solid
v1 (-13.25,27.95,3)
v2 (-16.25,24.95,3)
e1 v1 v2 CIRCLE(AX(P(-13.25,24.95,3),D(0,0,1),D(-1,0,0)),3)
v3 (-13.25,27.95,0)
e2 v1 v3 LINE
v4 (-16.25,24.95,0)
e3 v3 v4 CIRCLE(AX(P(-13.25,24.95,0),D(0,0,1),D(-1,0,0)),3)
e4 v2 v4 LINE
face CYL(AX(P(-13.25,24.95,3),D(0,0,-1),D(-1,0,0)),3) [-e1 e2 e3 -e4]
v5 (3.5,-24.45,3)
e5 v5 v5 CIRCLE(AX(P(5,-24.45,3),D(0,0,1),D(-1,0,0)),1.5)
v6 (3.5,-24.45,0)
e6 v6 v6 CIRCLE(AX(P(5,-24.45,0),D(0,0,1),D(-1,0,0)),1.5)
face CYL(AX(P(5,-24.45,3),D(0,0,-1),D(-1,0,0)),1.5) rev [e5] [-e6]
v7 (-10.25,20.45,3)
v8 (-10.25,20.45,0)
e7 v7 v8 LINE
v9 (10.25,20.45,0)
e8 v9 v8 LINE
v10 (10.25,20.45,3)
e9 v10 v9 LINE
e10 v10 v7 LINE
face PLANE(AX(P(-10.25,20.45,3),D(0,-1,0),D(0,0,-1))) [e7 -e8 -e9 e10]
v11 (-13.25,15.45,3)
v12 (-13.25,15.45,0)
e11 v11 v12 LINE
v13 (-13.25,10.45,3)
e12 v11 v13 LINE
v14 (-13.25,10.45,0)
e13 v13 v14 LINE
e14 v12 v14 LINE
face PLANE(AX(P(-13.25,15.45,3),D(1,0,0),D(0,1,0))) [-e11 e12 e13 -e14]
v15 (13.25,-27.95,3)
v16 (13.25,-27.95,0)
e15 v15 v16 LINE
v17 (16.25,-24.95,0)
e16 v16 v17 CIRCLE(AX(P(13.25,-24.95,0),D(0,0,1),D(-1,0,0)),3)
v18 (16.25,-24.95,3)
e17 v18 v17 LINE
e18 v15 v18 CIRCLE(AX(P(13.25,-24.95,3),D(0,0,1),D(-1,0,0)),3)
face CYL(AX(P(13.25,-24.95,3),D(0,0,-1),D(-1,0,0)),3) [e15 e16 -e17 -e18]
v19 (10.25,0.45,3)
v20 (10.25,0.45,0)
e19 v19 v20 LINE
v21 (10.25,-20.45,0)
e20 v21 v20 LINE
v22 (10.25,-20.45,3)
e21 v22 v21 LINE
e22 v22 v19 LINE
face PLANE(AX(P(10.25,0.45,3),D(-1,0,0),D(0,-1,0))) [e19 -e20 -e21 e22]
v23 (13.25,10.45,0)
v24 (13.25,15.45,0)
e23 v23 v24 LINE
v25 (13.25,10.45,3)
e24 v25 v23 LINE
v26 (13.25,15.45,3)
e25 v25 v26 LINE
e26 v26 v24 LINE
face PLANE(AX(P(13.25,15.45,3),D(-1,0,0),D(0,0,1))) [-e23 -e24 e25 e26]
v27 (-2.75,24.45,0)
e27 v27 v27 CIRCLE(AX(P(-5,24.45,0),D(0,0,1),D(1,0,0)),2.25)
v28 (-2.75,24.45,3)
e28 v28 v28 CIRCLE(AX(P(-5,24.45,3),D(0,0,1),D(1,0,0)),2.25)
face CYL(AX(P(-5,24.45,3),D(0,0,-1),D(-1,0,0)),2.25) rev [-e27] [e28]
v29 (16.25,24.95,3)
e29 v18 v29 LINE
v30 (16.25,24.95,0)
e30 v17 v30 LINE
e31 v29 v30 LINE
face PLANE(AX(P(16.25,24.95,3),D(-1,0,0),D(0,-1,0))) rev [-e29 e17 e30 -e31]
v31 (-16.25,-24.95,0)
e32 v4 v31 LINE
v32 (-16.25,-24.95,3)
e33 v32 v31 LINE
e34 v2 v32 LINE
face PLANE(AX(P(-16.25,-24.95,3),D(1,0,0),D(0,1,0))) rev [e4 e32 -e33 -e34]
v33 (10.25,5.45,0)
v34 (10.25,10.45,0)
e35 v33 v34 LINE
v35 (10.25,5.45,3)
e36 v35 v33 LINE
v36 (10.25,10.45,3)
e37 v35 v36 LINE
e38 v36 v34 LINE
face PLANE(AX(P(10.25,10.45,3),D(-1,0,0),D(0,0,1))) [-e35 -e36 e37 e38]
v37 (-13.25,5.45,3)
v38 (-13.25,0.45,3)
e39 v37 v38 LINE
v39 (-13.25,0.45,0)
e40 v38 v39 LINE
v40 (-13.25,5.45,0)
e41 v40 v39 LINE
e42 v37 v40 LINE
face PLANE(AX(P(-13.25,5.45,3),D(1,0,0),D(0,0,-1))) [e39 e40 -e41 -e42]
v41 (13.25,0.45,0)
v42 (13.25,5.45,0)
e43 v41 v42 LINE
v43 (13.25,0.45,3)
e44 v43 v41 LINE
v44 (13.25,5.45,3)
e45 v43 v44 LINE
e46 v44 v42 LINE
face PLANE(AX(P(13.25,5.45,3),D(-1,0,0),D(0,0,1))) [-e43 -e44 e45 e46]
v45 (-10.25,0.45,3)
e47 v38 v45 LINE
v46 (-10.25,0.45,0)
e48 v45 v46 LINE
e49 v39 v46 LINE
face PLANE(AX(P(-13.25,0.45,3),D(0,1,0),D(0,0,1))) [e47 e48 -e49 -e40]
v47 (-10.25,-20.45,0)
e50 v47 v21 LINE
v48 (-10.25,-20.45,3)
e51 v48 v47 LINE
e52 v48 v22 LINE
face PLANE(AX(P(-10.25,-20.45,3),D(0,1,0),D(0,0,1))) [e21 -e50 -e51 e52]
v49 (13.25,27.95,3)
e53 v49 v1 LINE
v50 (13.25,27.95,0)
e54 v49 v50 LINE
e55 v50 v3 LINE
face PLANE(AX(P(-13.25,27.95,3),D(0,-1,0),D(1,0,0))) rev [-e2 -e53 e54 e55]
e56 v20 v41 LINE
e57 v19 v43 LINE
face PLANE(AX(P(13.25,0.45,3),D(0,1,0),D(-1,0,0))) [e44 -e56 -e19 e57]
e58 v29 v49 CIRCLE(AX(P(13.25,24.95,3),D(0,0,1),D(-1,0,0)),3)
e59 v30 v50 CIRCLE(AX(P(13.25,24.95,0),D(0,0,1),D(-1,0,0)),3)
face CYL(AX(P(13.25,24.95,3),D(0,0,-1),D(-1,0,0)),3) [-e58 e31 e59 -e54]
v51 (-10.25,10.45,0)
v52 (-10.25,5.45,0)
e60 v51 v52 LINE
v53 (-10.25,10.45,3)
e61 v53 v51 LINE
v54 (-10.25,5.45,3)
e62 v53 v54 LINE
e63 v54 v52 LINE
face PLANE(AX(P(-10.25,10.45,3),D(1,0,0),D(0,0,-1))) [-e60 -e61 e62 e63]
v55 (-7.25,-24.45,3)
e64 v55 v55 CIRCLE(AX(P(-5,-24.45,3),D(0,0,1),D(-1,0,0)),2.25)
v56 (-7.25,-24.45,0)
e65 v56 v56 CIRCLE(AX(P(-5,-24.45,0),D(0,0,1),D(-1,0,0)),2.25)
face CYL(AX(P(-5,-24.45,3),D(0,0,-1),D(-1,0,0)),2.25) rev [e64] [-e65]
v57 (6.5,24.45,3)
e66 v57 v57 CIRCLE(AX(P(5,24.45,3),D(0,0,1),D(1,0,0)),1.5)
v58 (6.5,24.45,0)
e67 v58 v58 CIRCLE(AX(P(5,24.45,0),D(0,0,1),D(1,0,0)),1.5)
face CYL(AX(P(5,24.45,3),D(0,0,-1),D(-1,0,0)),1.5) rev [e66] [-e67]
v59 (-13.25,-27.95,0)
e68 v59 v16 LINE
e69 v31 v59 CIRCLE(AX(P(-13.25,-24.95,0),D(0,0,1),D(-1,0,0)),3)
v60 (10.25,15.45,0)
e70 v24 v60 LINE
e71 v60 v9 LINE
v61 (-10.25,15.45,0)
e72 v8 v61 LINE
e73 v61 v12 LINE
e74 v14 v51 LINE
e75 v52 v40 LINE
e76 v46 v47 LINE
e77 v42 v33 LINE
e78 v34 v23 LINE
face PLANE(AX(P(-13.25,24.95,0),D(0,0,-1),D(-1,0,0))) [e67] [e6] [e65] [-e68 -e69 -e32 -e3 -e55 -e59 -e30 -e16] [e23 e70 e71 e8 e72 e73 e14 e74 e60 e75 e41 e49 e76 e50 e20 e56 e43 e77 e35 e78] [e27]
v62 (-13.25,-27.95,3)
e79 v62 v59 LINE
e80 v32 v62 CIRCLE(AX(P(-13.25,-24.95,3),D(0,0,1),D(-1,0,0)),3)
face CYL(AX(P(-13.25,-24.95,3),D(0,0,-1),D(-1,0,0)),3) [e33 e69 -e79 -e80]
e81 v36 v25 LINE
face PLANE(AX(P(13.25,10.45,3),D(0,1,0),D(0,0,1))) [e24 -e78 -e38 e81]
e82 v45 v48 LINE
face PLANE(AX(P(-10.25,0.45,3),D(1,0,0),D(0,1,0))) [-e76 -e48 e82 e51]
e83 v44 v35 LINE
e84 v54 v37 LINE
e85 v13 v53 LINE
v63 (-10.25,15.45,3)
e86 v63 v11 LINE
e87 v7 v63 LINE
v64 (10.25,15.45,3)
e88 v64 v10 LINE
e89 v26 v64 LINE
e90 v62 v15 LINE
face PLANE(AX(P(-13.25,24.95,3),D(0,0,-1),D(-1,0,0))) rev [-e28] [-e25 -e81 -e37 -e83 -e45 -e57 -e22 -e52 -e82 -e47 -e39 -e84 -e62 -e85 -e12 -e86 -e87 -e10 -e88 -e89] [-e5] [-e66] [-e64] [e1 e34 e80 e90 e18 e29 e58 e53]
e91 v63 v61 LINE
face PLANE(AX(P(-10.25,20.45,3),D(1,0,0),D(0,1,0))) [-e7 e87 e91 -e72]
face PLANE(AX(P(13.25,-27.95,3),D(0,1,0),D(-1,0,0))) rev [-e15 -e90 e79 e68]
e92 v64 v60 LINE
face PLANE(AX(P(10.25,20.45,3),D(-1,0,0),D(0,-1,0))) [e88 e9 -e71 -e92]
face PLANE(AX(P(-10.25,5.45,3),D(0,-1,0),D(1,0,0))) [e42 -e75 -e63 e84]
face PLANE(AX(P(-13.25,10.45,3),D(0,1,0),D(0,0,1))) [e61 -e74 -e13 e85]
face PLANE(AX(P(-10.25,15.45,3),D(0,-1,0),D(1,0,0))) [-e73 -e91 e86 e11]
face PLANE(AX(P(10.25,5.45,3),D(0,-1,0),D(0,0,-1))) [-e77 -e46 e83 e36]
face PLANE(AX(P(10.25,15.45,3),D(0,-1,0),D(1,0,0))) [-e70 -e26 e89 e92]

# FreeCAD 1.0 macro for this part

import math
import FreeCAD as App
import Part
import Sketcher
Q = App.Units.Quantity


def add_polygon(sketch, points):
    """Adds a closed chain of lines whose ends are joined by coincident constraints."""
    first, n = sketch.GeometryCount, len(points)
    for a, b in zip(points, points[1:] + points[:1]):
        sketch.addGeometry(Part.LineSegment(App.Vector(*a, 0), App.Vector(*b, 0)), False)
    for i in range(n):
        sketch.addConstraint(Sketcher.Constraint("Coincident", first + i, 2, first + (i + 1) % n, 1))

doc = App.newDocument("Part")
body = doc.addObject("PartDesign::Body", "Body")

# Sketch on XY plane
sketch1 = body.newObject("Sketcher::SketchObject", "Sketch")
sketch1.AttachmentSupport = (doc.getObject("XY_Plane"), [""])
sketch1.MapMode = "FlatFace"
sketch1.addGeometry(Part.LineSegment(App.Vector(13.25, 27.95, 0), App.Vector(-13.25, 27.95, 0)), False)  # 0
sketch1.addGeometry(Part.ArcOfCircle(Part.Circle(App.Vector(-13.25, 24.95, 0), App.Vector(0, 0, 1), 3), math.radians(90), math.radians(180)), False)  # 1
sketch1.addGeometry(Part.LineSegment(App.Vector(-16.25, 24.95, 0), App.Vector(-16.25, -24.95, 0)), False)  # 2
sketch1.addGeometry(Part.ArcOfCircle(Part.Circle(App.Vector(-13.25, -24.95, 0), App.Vector(0, 0, 1), 3), math.radians(180), math.radians(270)), False)  # 3
sketch1.addGeometry(Part.LineSegment(App.Vector(-13.25, -27.95, 0), App.Vector(13.25, -27.95, 0)), False)  # 4
sketch1.addGeometry(Part.ArcOfCircle(Part.Circle(App.Vector(13.25, -24.95, 0), App.Vector(0, 0, 1), 3), math.radians(-90), math.radians(0)), False)  # 5
sketch1.addGeometry(Part.LineSegment(App.Vector(16.25, -24.95, 0), App.Vector(16.25, 24.95, 0)), False)  # 6
sketch1.addGeometry(Part.ArcOfCircle(Part.Circle(App.Vector(13.25, 24.95, 0), App.Vector(0, 0, 1), 3), math.radians(0), math.radians(90)), False)  # 7
sketch1.addGeometry(Part.Circle(App.Vector(5, -24.45, 0), App.Vector(0, 0, 1), 1.5), False)  # 8
sketch1.addGeometry(Part.Circle(App.Vector(-5, -24.45, 0), App.Vector(0, 0, 1), 2.25), False)  # 9
sketch1.addGeometry(Part.Circle(App.Vector(5, 24.45, 0), App.Vector(0, 0, 1), 1.5), False)  # 10
add_polygon(sketch1, [(-10.25, 20.45), (10.25, 20.45), (10.25, 15.45), (13.25, 15.45), (13.25, 10.45), (10.25, 10.45), (10.25, 5.45), (13.25, 5.45), (13.25, 0.45), (10.25, 0.45), (10.25, -20.45), (-10.25, -20.45), (-10.25, 0.45), (-13.25, 0.45), (-13.25, 5.45), (-10.25, 5.45), (-10.25, 10.45), (-13.25, 10.45), (-13.25, 15.45), (-10.25, 15.45)])  # lines 11-30
sketch1.addGeometry(Part.Circle(App.Vector(-5, 24.45, 0), App.Vector(0, 0, 1), 2.25), False)  # 31
sketch1.addConstraint([
    Sketcher.Constraint("Tangent", 0, 2, 1, 1),
    Sketcher.Constraint("Tangent", 1, 2, 2, 1),
    Sketcher.Constraint("Tangent", 2, 2, 3, 1),
    Sketcher.Constraint("Tangent", 3, 2, 4, 1),
    Sketcher.Constraint("Tangent", 4, 2, 5, 1),
    Sketcher.Constraint("Tangent", 5, 2, 6, 1),
    Sketcher.Constraint("Tangent", 6, 2, 7, 1),
    Sketcher.Constraint("Tangent", 7, 2, 0, 1),
    Sketcher.Constraint("Horizontal", 0),
    Sketcher.Constraint("Vertical", 2),
    Sketcher.Constraint("Horizontal", 4),
    Sketcher.Constraint("Vertical", 6),
    Sketcher.Constraint("Horizontal", 11),
    Sketcher.Constraint("Vertical", 12),
    Sketcher.Constraint("Horizontal", 13),
    Sketcher.Constraint("Vertical", 14),
    Sketcher.Constraint("Horizontal", 15),
    Sketcher.Constraint("Vertical", 16),
    Sketcher.Constraint("Horizontal", 17),
    Sketcher.Constraint("Vertical", 18),
    Sketcher.Constraint("Horizontal", 19),
    Sketcher.Constraint("Vertical", 20),
    Sketcher.Constraint("Horizontal", 21),
    Sketcher.Constraint("Vertical", 22),
    Sketcher.Constraint("Horizontal", 23),
    Sketcher.Constraint("Vertical", 24),
    Sketcher.Constraint("Horizontal", 25),
    Sketcher.Constraint("Vertical", 26),
    Sketcher.Constraint("Horizontal", 27),
    Sketcher.Constraint("Vertical", 28),
    Sketcher.Constraint("Horizontal", 29),
    Sketcher.Constraint("Vertical", 30),
    Sketcher.Constraint("Equal", 1, 3),
    Sketcher.Constraint("Equal", 3, 5),
    Sketcher.Constraint("Equal", 5, 7),
    Sketcher.Constraint("Equal", 8, 10),
    Sketcher.Constraint("Equal", 9, 31),
    Sketcher.Constraint("Symmetric", 1, 3, 5, 3, -1, 1),
    Sketcher.Constraint("Symmetric", 9, 3, 10, 3, -1, 1),
    Sketcher.Constraint("Symmetric", 8, 3, 31, 3, -1, 1),
    Sketcher.Constraint("Symmetric", 11, 2, 21, 2, -1, 1),
    Sketcher.Constraint("Symmetric", 8, 3, 9, 3, -2),
    Sketcher.Constraint("Symmetric", 19, 2, 22, 2, -2),
    Sketcher.Constraint("Symmetric", 17, 2, 24, 2, -2),
    Sketcher.Constraint("Symmetric", 15, 2, 26, 2, -2),
    Sketcher.Constraint("Symmetric", 13, 2, 28, 2, -2),
    Sketcher.Constraint("Vertical", 7, 2, 13, 2),
    Sketcher.Constraint("Vertical", 12, 2, 15, 2),
    Sketcher.Constraint("Vertical", 14, 2, 17, 2),
    Sketcher.Constraint("Vertical", 26, 2, 29, 2),
    Sketcher.Constraint("Equal", 12, 14),
    Sketcher.Constraint("Equal", 14, 16),
    Sketcher.Constraint("Equal", 16, 18),
    Sketcher.Constraint("Diameter", 8, Q("3 mm")),
    Sketcher.Constraint("Radius", 1, Q("3 mm")),
    Sketcher.Constraint("Diameter", 9, Q("4.5 mm")),
    Sketcher.Constraint("DistanceX", 13, 1, 13, 2, Q("3 mm")),
    Sketcher.Constraint("DistanceY", 12, 2, 12, 1, Q("5 mm")),
    Sketcher.Constraint("DistanceX", 0, 2, 0, 1, Q("26.5 mm")),
    Sketcher.Constraint("DistanceY", 2, 2, 2, 1, Q("49.9 mm")),
    Sketcher.Constraint("DistanceY", 20, 2, 20, 1, Q("20.9 mm")),
    Sketcher.Constraint("DistanceX", -1, 1, 8, 3, Q("5 mm")),
    Sketcher.Constraint("DistanceY", 11, 2, 10, 3, Q("4 mm")),
])
pad1 = body.newObject("PartDesign::Pad", "Pad")
pad1.Profile = sketch1
pad1.Length = 3

doc.recompute()
